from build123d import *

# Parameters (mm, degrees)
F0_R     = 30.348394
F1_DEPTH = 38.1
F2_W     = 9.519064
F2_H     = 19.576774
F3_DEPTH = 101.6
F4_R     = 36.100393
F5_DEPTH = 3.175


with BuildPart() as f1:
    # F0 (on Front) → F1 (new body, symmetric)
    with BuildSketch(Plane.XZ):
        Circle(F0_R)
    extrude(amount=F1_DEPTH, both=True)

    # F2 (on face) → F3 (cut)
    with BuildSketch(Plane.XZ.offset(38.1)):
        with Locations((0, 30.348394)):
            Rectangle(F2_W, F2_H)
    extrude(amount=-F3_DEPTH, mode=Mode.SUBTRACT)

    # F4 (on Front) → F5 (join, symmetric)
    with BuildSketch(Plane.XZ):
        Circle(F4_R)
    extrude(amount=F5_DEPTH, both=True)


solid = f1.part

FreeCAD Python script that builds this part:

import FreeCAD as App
import Part
import Sketcher
Q = App.Units.Quantity


def add_polygon(sketch, points):
    """Adds a closed chain of lines whose ends are joined by coincident constraints."""
    first, n = sketch.GeometryCount, len(points)
    for a, b in zip(points, points[1:] + points[:1]):
        sketch.addGeometry(Part.LineSegment(App.Vector(*a, 0), App.Vector(*b, 0)), False)
    for i in range(n):
        sketch.addConstraint(Sketcher.Constraint("Coincident", first + i, 2, first + (i + 1) % n, 1))

doc = App.newDocument("Part")
params = doc.addObject("Spreadsheet::Sheet", "Params")
for row, (alias, value) in enumerate([
    ("pad1_length", "3 in"),
    ("pocket1_length", "4 in"),
    ("pad2_length", "0.25 in"),
], start=1):
    params.set(f"A{row}", alias)
    params.set(f"B{row}", "=" + value)
    params.setAlias(f"B{row}", alias)

body = doc.addObject("PartDesign::Body", "Body")

sketch1 = body.newObject("Sketcher::SketchObject", "Sketch")
sketch1.AttachmentSupport = (doc.getObject("XZ_Plane"), [""])
sketch1.MapMode = "FlatFace"
sketch1.addGeometry(Part.Circle(App.Vector(0, 0, 0), App.Vector(0, 0, 1), 30), False)
sketch1.addConstraint([
    Sketcher.Constraint("Coincident", 0, 3, -1, 1),
    Sketcher.Constraint("Diameter", 0, Q("60.696788 mm")),
])
pad1 = body.newObject("PartDesign::Pad", "Pad")
pad1.Profile = sketch1
pad1.setExpression("Length", "Params.pad1_length")
pad1.Midplane = True

sketch2 = body.newObject("Sketcher::SketchObject", "Sketch001")
sketch2.AttachmentSupport = (doc.getObject("XZ_Plane"), [""])
sketch2.MapMode = "FlatFace"
sketch2.AttachmentOffset = App.Placement(App.Vector(0, 0, 1.5 * 25.4), App.Rotation())
add_polygon(sketch2, [(-5, 40), (-5, 21), (5, 21), (5, 40)])
sketch2.addConstraint([
    Sketcher.Constraint("Vertical", 0),
    Sketcher.Constraint("Horizontal", 1),
    Sketcher.Constraint("Vertical", 2),
    Sketcher.Constraint("Horizontal", 3),
    Sketcher.Constraint("DistanceX", 1, 1, 1, 2, Q("9.519064 mm")),
    Sketcher.Constraint("DistanceY", 0, 2, 0, 1, Q("19.576774 mm")),
    Sketcher.Constraint("DistanceY", -1, 1, 2, 2, Q("40.136781 mm")),
    Sketcher.Constraint("DistanceX", 0, 2, -1, 1, Q("4.759532 mm")),
])
pocket1 = body.newObject("PartDesign::Pocket", "Pocket")
pocket1.Profile = sketch2
pocket1.setExpression("Length", "Params.pocket1_length")

sketch3 = body.newObject("Sketcher::SketchObject", "Sketch002")
sketch3.AttachmentSupport = (doc.getObject("XZ_Plane"), [""])
sketch3.MapMode = "FlatFace"
sketch3.addGeometry(Part.Circle(App.Vector(0, 0, 0), App.Vector(0, 0, 1), 36), False)
sketch3.addConstraint([
    Sketcher.Constraint("Coincident", 0, 3, -1, 1),
    Sketcher.Constraint("Diameter", 0, Q("72.200786 mm")),
])
pad2 = body.newObject("PartDesign::Pad", "Pad001")
pad2.Profile = sketch3
pad2.setExpression("Length", "Params.pad2_length")
pad2.Midplane = True

doc.recompute()
